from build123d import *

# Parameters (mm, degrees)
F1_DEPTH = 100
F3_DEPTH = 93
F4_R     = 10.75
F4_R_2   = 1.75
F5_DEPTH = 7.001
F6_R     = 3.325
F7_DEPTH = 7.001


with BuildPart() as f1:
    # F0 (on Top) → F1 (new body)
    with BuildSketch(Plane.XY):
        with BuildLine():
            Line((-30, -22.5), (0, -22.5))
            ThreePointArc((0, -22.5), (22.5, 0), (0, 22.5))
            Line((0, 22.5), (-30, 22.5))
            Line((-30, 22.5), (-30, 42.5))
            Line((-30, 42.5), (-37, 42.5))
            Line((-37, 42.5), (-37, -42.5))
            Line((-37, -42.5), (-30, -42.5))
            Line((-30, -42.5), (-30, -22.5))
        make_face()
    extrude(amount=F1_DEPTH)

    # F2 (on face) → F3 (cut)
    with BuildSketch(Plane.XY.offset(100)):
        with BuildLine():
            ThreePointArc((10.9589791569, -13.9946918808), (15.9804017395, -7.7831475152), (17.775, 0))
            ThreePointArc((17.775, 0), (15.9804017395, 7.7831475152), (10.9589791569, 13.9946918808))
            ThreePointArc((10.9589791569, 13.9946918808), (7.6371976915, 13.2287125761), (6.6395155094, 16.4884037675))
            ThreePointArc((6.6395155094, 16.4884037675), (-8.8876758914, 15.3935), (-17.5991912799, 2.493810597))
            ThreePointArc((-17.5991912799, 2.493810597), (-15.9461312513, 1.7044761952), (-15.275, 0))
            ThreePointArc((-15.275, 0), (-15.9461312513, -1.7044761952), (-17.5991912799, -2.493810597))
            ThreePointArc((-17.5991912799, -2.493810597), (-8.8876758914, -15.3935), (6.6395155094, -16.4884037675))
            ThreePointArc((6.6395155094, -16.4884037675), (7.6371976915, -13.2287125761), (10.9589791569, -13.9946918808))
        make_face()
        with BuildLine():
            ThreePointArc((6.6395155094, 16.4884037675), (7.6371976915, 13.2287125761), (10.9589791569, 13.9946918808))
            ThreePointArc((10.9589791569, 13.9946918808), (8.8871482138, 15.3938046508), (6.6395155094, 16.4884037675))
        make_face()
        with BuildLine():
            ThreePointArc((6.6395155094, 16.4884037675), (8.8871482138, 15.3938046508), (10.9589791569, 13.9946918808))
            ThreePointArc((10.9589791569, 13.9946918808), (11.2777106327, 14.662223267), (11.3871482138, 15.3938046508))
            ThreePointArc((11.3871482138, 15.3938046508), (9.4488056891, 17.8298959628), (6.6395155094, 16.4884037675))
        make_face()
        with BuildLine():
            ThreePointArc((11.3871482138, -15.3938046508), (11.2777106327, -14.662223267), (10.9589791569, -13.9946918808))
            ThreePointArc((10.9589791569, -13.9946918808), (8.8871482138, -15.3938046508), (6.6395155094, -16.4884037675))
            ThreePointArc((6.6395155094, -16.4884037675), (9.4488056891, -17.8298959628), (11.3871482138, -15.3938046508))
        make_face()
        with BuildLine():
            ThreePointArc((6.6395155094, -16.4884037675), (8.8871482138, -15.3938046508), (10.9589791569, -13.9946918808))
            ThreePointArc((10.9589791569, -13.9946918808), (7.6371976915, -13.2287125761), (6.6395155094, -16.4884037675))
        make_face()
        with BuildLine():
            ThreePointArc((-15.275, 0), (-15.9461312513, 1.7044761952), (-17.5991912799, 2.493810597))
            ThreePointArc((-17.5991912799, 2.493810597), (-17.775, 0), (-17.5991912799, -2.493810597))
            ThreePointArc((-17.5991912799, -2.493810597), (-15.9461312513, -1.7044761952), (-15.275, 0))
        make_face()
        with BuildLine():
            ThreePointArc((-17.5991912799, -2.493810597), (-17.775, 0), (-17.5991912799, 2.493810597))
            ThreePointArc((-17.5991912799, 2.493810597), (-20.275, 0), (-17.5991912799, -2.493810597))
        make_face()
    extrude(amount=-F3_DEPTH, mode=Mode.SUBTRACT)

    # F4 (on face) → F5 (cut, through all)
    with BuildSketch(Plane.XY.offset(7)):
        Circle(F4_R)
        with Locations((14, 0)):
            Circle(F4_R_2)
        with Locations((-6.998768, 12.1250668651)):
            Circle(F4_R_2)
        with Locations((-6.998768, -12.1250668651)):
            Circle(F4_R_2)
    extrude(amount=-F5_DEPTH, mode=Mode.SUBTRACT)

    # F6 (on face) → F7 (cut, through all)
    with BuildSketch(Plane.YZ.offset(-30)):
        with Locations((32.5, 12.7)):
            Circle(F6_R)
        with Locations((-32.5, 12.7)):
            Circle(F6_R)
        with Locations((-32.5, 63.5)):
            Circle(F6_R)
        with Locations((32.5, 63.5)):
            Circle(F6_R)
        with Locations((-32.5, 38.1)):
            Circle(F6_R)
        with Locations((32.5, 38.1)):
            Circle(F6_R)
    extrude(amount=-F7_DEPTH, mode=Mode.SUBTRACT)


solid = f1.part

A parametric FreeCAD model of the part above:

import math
import FreeCAD as App
import Part
import Sketcher
from FreeCAD import Vector

doc = App.newDocument("Part")
params = doc.addObject("Spreadsheet::Sheet", "Params")
for row, (alias, value) in enumerate([
    ("sketch1_radius", "22.5 mm"),
    ("sketch1_width", "30 mm"),
    ("sketch1_width2", "7 mm"),
    ("sketch1_height", "20 mm"),
    ("pad1_length", "100 mm"),
    ("sketch2_radius", "2.5 mm"),
    ("pocket1_length", "93 mm"),
    ("sketch3_diameter", "21.5 mm"),
    ("sketch3_diameter2", "3.5 mm"),
    ("sketch4_diameter", "6.65 mm"),
], start=1):
    params.set(f"A{row}", alias)
    params.set(f"B{row}", "=" + value)
    params.setAlias(f"B{row}", alias)

body = doc.addObject("PartDesign::Body", "Body")

# Sketch on XY plane
sketch1 = body.newObject("Sketcher::SketchObject", "Sketch")
sketch1.AttachmentSupport = (doc.getObject("XY_Plane"), [""])
sketch1.MapMode = "FlatFace"
sketch1.addGeometry(Part.LineSegment(Vector(-30, -22, 0), Vector(0, -22, 0)), False)
sketch1.addGeometry(Part.ArcOfCircle(Part.Circle(Vector(0, 0, 0), Vector(0, 0, 1), 22), math.radians(-90), math.radians(90)), False)
sketch1.addGeometry(Part.LineSegment(Vector(0, 22, 0), Vector(-30, 22, 0)), False)
sketch1.addGeometry(Part.LineSegment(Vector(-30, 22, 0), Vector(-30, 42, 0)), False)
sketch1.addGeometry(Part.LineSegment(Vector(-30, 42, 0), Vector(-37, 42, 0)), False)
sketch1.addGeometry(Part.LineSegment(Vector(-37, 42, 0), Vector(-37, -42, 0)), False)
sketch1.addGeometry(Part.LineSegment(Vector(-37, -42, 0), Vector(-30, -42, 0)), False)
sketch1.addGeometry(Part.LineSegment(Vector(-30, -42, 0), Vector(-30, -22, 0)), False)
sketch1.addConstraint(Sketcher.Constraint("Tangent", 0, 2, 1, 1))
sketch1.addConstraint(Sketcher.Constraint("Tangent", 1, 2, 2, 1))
sketch1.addConstraint(Sketcher.Constraint("Coincident", 2, 2, 3, 1))
sketch1.addConstraint(Sketcher.Constraint("Coincident", 3, 2, 4, 1))
sketch1.addConstraint(Sketcher.Constraint("Coincident", 4, 2, 5, 1))
sketch1.addConstraint(Sketcher.Constraint("Coincident", 5, 2, 6, 1))
sketch1.addConstraint(Sketcher.Constraint("Coincident", 6, 2, 7, 1))
sketch1.addConstraint(Sketcher.Constraint("Coincident", 7, 2, 0, 1))
sketch1.addConstraint(Sketcher.Constraint("Horizontal", 0))
sketch1.addConstraint(Sketcher.Constraint("Horizontal", 2))
sketch1.addConstraint(Sketcher.Constraint("Vertical", 3))
sketch1.addConstraint(Sketcher.Constraint("Horizontal", 4))
sketch1.addConstraint(Sketcher.Constraint("Vertical", 5))
sketch1.addConstraint(Sketcher.Constraint("Horizontal", 6))
sketch1.addConstraint(Sketcher.Constraint("Vertical", 7))
sketch1.addConstraint(Sketcher.Constraint("Coincident", 1, 3, -1, 1))
sketch1.addConstraint(Sketcher.Constraint("Symmetric", 3, 2, 6, 2, -1))
sketch1.addConstraint(Sketcher.Constraint("Radius", 1, 22.5))
sketch1.addConstraint(Sketcher.Constraint("DistanceX", 0, 1, 0, 2, 30.0))
sketch1.addConstraint(Sketcher.Constraint("DistanceX", 4, 2, 4, 1, 7.0))
sketch1.addConstraint(Sketcher.Constraint("DistanceY", 3, 1, 3, 2, 20.0))
sketch1.setExpression("Constraints[17]", "Params.sketch1_radius")
sketch1.setExpression("Constraints[18]", "Params.sketch1_width")
sketch1.setExpression("Constraints[19]", "Params.sketch1_width2")
sketch1.setExpression("Constraints[20]", "Params.sketch1_height")
pad1 = body.newObject("PartDesign::Pad", "Pad")
pad1.Profile = sketch1
pad1.setExpression("Length", "Params.pad1_length")

# Sketch on XY plane
sketch2 = body.newObject("Sketcher::SketchObject", "Sketch001")
sketch2.AttachmentSupport = (doc.getObject("XY_Plane"), [""])
sketch2.MapMode = "FlatFace"
sketch2.AttachmentOffset = App.Placement(Vector(0, 0, 100), App.Rotation())
sketch2.addGeometry(Part.ArcOfCircle(Part.Circle(Vector(0, 0, 0), Vector(0, 0, 1), 17.8), math.radians(-52), math.radians(0)), False)
sketch2.addGeometry(Part.ArcOfCircle(Part.Circle(Vector(0, 0, 0), Vector(0, 0, 1), 17.8), math.radians(0), math.radians(52)), False)
sketch2.addGeometry(Part.ArcOfCircle(Part.Circle(Vector(8.9, 15.4, 0), Vector(0, 0, 1), 2.5), math.radians(-34), math.radians(0)), False)
sketch2.addGeometry(Part.ArcOfCircle(Part.Circle(Vector(8.9, 15.4, 0), Vector(0, 0, 1), 2.5), math.radians(0), math.radians(154)), False)
sketch2.addGeometry(Part.ArcOfCircle(Part.Circle(Vector(0, 0, 0), Vector(0, 0, 1), 17.8), math.radians(68), math.radians(172)), False)
sketch2.addGeometry(Part.ArcOfCircle(Part.Circle(Vector(-17.8, 0, 0), Vector(0, 0, 1), 2.5), math.radians(86), math.radians(274)), False)
sketch2.addGeometry(Part.ArcOfCircle(Part.Circle(Vector(0, 0, 0), Vector(0, 0, 1), 17.8), math.radians(-172), math.radians(-68)), False)
sketch2.addGeometry(Part.ArcOfCircle(Part.Circle(Vector(8.9, -15.4, 0), Vector(0, 0, 1), 2.5), math.radians(-154), math.radians(0)), False)
sketch2.addGeometry(Part.ArcOfCircle(Part.Circle(Vector(8.9, -15.4, 0), Vector(0, 0, 1), 2.5), math.radians(0), math.radians(34)), False)
sketch2.addConstraint(Sketcher.Constraint("Tangent", 0, 2, 1, 1))
sketch2.addConstraint(Sketcher.Constraint("Coincident", 1, 2, 2, 1))
sketch2.addConstraint(Sketcher.Constraint("Tangent", 2, 2, 3, 1))
sketch2.addConstraint(Sketcher.Constraint("Coincident", 3, 2, 4, 1))
sketch2.addConstraint(Sketcher.Constraint("Coincident", 4, 2, 5, 1))
sketch2.addConstraint(Sketcher.Constraint("Coincident", 5, 2, 6, 1))
sketch2.addConstraint(Sketcher.Constraint("Coincident", 6, 2, 7, 1))
sketch2.addConstraint(Sketcher.Constraint("Tangent", 7, 2, 8, 1))
sketch2.addConstraint(Sketcher.Constraint("Coincident", 8, 2, 0, 1))
sketch2.addConstraint(Sketcher.Constraint("Coincident", 0, 3, -1, 1))
sketch2.addConstraint(Sketcher.Constraint("Coincident", 4, 3, -1, 1))
sketch2.addConstraint(Sketcher.Constraint("Coincident", 6, 3, -1, 1))
sketch2.addConstraint(Sketcher.Constraint("Equal", 0, 1))
sketch2.addConstraint(Sketcher.Constraint("Equal", 2, 3))
sketch2.addConstraint(Sketcher.Constraint("Equal", 1, 4))
sketch2.addConstraint(Sketcher.Constraint("Equal", 3, 5))
sketch2.addConstraint(Sketcher.Constraint("Equal", 4, 6))
sketch2.addConstraint(Sketcher.Constraint("Equal", 5, 7))
sketch2.addConstraint(Sketcher.Constraint("Equal", 7, 8))
sketch2.addConstraint(Sketcher.Constraint("Symmetric", 2, 3, 7, 3, -1))
sketch2.addConstraint(Sketcher.Constraint("PointOnObject", 5, 3, -1))
sketch2.addConstraint(Sketcher.Constraint("PointOnObject", 0, 2, -1))
sketch2.addConstraint(Sketcher.Constraint("Horizontal", 3, 3, 2, 2))
sketch2.addConstraint(Sketcher.Constraint("Horizontal", 8, 3, 7, 2))
sketch2.addConstraint(Sketcher.Constraint("Radius", 2, 2.5))
sketch2.addConstraint(Sketcher.Constraint("Radius", 0, 17.775))
sketch2.addConstraint(Sketcher.Constraint("DistanceX", 5, 3, -1, 1, 17.775))
sketch2.addConstraint(Sketcher.Constraint("DistanceY", 2, 3, 3, 2, 1.094599))
sketch2.addConstraint(Sketcher.Constraint("DistanceX", -1, 1, 2, 3, 8.887148))
sketch2.setExpression("Constraints[24]", "Params.sketch2_radius")
pocket1 = body.newObject("PartDesign::Pocket", "Pocket")
pocket1.Profile = sketch2
pocket1.setExpression("Length", "Params.pocket1_length")

# Sketch on XY plane
sketch3 = body.newObject("Sketcher::SketchObject", "Sketch002")
sketch3.AttachmentSupport = (doc.getObject("XY_Plane"), [""])
sketch3.MapMode = "FlatFace"
sketch3.AttachmentOffset = App.Placement(Vector(0, 0, 7), App.Rotation())
sketch3.addGeometry(Part.Circle(Vector(0, 0, 0), Vector(0, 0, 1), 10.8), False)
sketch3.addGeometry(Part.Circle(Vector(14, 0, 0), Vector(0, 0, 1), 1.8), False)
sketch3.addGeometry(Part.Circle(Vector(-7, 12.1, 0), Vector(0, 0, 1), 1.8), False)
sketch3.addGeometry(Part.Circle(Vector(-7, -12.1, 0), Vector(0, 0, 1), 1.8), False)
sketch3.addConstraint(Sketcher.Constraint("Coincident", 0, 3, -1, 1))
sketch3.addConstraint(Sketcher.Constraint("Equal", 1, 2))
sketch3.addConstraint(Sketcher.Constraint("Equal", 2, 3))
sketch3.addConstraint(Sketcher.Constraint("Symmetric", 2, 3, 3, 3, -1))
sketch3.addConstraint(Sketcher.Constraint("PointOnObject", 1, 3, -1))
sketch3.addConstraint(Sketcher.Constraint("Diameter", 0, 21.5))
sketch3.addConstraint(Sketcher.Constraint("Diameter", 1, 3.5))
sketch3.addConstraint(Sketcher.Constraint("DistanceX", -1, 1, 1, 3, 14.0))
sketch3.addConstraint(Sketcher.Constraint("DistanceX", 2, 3, -1, 1, 6.998768))
sketch3.addConstraint(Sketcher.Constraint("DistanceY", -1, 1, 2, 3, 12.125067))
sketch3.setExpression("Constraints[5]", "Params.sketch3_diameter")
sketch3.setExpression("Constraints[6]", "Params.sketch3_diameter2")
pocket2 = body.newObject("PartDesign::Pocket", "Pocket001")
pocket2.Profile = sketch3
pocket2.Type = "ThroughAll"

# Sketch on YZ plane
sketch4 = body.newObject("Sketcher::SketchObject", "Sketch003")
sketch4.AttachmentSupport = (doc.getObject("YZ_Plane"), [""])
sketch4.MapMode = "FlatFace"
sketch4.AttachmentOffset = App.Placement(Vector(0, 0, -30), App.Rotation())
sketch4.addGeometry(Part.Circle(Vector(32.5, 12.7, 0), Vector(0, 0, 1), 3.3), False)
sketch4.addGeometry(Part.Circle(Vector(-32.5, 12.7, 0), Vector(0, 0, 1), 3.3), False)
sketch4.addGeometry(Part.Circle(Vector(-32.5, 63.5, 0), Vector(0, 0, 1), 3.3), False)
sketch4.addGeometry(Part.Circle(Vector(32.5, 63.5, 0), Vector(0, 0, 1), 3.3), False)
sketch4.addGeometry(Part.Circle(Vector(-32.5, 38.1, 0), Vector(0, 0, 1), 3.3), False)
sketch4.addGeometry(Part.Circle(Vector(32.5, 38.1, 0), Vector(0, 0, 1), 3.3), False)
sketch4.addConstraint(Sketcher.Constraint("Equal", 0, 1))
sketch4.addConstraint(Sketcher.Constraint("Equal", 1, 2))
sketch4.addConstraint(Sketcher.Constraint("Equal", 2, 3))
sketch4.addConstraint(Sketcher.Constraint("Equal", 3, 4))
sketch4.addConstraint(Sketcher.Constraint("Equal", 4, 5))
sketch4.addConstraint(Sketcher.Constraint("Symmetric", 0, 3, 1, 3, -2))
sketch4.addConstraint(Sketcher.Constraint("Symmetric", 2, 3, 3, 3, -2))
sketch4.addConstraint(Sketcher.Constraint("Symmetric", 4, 3, 5, 3, -2))
sketch4.addConstraint(Sketcher.Constraint("Vertical", 1, 3, 2, 3))
sketch4.addConstraint(Sketcher.Constraint("Vertical", 2, 3, 4, 3))
sketch4.addConstraint(Sketcher.Constraint("Diameter", 0, 6.65))
sketch4.addConstraint(Sketcher.Constraint("DistanceX", 1, 3, 0, 3, 65.0))
sketch4.addConstraint(Sketcher.Constraint("DistanceY", -1, 1, 0, 3, 12.7))
sketch4.addConstraint(Sketcher.Constraint("DistanceY", -1, 1, 2, 3, 63.5))
sketch4.addConstraint(Sketcher.Constraint("DistanceY", -1, 1, 4, 3, 38.1))
sketch4.setExpression("Constraints[10]", "Params.sketch4_diameter")
pocket3 = body.newObject("PartDesign::Pocket", "Pocket002")
pocket3.Profile = sketch4
pocket3.Type = "ThroughAll"

doc.recompute()
